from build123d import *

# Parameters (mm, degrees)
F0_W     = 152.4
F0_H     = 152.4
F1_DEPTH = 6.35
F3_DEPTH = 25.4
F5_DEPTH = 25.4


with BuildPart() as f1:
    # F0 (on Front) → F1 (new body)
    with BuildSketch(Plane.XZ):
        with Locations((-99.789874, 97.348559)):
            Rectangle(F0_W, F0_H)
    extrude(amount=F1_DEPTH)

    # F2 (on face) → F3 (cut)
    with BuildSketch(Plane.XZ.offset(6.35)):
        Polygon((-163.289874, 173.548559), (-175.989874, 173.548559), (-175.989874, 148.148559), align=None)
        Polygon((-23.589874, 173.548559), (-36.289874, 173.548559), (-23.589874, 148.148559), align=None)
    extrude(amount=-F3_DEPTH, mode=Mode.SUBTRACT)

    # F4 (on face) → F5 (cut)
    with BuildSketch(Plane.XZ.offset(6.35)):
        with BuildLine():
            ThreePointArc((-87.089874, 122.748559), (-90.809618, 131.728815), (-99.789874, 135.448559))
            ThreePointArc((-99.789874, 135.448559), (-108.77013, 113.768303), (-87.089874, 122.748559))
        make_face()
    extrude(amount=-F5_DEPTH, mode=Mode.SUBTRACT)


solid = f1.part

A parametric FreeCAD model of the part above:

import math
import FreeCAD as App
import Part
import Sketcher

V = App.Vector
Q = App.Units.Quantity

doc = App.newDocument("Part")
params = doc.addObject("Spreadsheet::Sheet", "Params")
for row, (alias, value) in enumerate([
    ("sketch1_width", "6 in"),
    ("pad1_length", "0.25 in"),
    ("sketch2_height", "1 in"),
    ("sketch2_width", "0.5 in"),
    ("pocket1_length", "1 in"),
    ("sketch3_radius", "0.5 in"),
    ("pocket2_length", "1 in"),
], start=1):
    params.set(f"A{row}", alias)
    params.set(f"B{row}", "=" + value)
    params.setAlias(f"B{row}", alias)

body = doc.addObject("PartDesign::Body", "Body")

# Sketch on XZ plane
sketch1 = body.newObject("Sketcher::SketchObject", "Sketch")
sketch1.AttachmentSupport = (doc.getObject("XZ_Plane"), [""])
sketch1.MapMode = "FlatFace"
sketch1.addGeometry([
    Part.LineSegment(V(-175.989874, 173.548559, 0), V(-175.989874, 21.148559, 0)),
    Part.LineSegment(V(-175.989874, 21.148559, 0), V(-23.589874, 21.148559, 0)),
    Part.LineSegment(V(-23.589874, 21.148559, 0), V(-23.589874, 173.548559, 0)),
    Part.LineSegment(V(-23.589874, 173.548559, 0), V(-175.989874, 173.548559, 0)),
], False)
sketch1.addConstraint([
    Sketcher.Constraint("Coincident", 0, 2, 1, 1),
    Sketcher.Constraint("Coincident", 1, 2, 2, 1),
    Sketcher.Constraint("Coincident", 2, 2, 3, 1),
    Sketcher.Constraint("Coincident", 3, 2, 0, 1),
    Sketcher.Constraint("Vertical", 0),
    Sketcher.Constraint("Horizontal", 1),
    Sketcher.Constraint("Vertical", 2),
    Sketcher.Constraint("Horizontal", 3),
    Sketcher.Constraint("Equal", 3, 0),
    Sketcher.Constraint("DistanceX", 1, 1, 1, 2, Q("6 in")),
    Sketcher.Constraint("DistanceY", -1, 1, 0, 2, Q("21.148559 mm")),
    Sketcher.Constraint("DistanceX", 0, 2, -1, 1, Q("175.989874 mm")),
])
sketch1.setExpression("Constraints[9]", "Params.sketch1_width")
pad1 = body.newObject("PartDesign::Pad", "Pad")
pad1.Profile = sketch1
pad1.setExpression("Length", "Params.pad1_length")

# Sketch on XZ plane
sketch2 = body.newObject("Sketcher::SketchObject", "Sketch001")
sketch2.AttachmentSupport = (doc.getObject("XZ_Plane"), [""])
sketch2.MapMode = "FlatFace"
sketch2.AttachmentOffset = App.Placement(V(0, 0, 0.25 * 25.4), App.Rotation())
sketch2.addGeometry([
    Part.LineSegment(V(-163.289874, 173.548559, 0), V(-175.989874, 173.548559, 0)),  # 0
    Part.LineSegment(V(-175.989874, 173.548559, 0), V(-175.989874, 148.148559, 0)),  # 1
    Part.LineSegment(V(-175.989874, 148.148559, 0), V(-163.289874, 173.548559, 0)),  # 2
    Part.LineSegment(V(-23.589874, 173.548559, 0), V(-36.289874, 173.548559, 0)),  # 3
    Part.LineSegment(V(-36.289874, 173.548559, 0), V(-23.589874, 148.148559, 0)),  # 4
    Part.LineSegment(V(-23.589874, 148.148559, 0), V(-23.589874, 173.548559, 0)),  # 5
], False)
sketch2.addConstraint([
    Sketcher.Constraint("Coincident", 0, 2, 1, 1),
    Sketcher.Constraint("Coincident", 1, 2, 2, 1),
    Sketcher.Constraint("Coincident", 2, 2, 0, 1),
    Sketcher.Constraint("Coincident", 3, 2, 4, 1),
    Sketcher.Constraint("Coincident", 4, 2, 5, 1),
    Sketcher.Constraint("Coincident", 5, 2, 3, 1),
    Sketcher.Constraint("Horizontal", 0),
    Sketcher.Constraint("Vertical", 1),
    Sketcher.Constraint("Horizontal", 3),
    Sketcher.Constraint("Vertical", 5),
    Sketcher.Constraint("Horizontal", 2, 2, 3, 2),
    Sketcher.Constraint("Horizontal", 1, 2, 4, 2),
    Sketcher.Constraint("Equal", 0, 3),
    Sketcher.Constraint("DistanceY", 1, 2, 1, 1, Q("1 in")),
    Sketcher.Constraint("DistanceX", 0, 2, 0, 1, Q("0.5 in")),
    Sketcher.Constraint("DistanceX", 2, 2, 3, 2, Q("5 in")),
    Sketcher.Constraint("DistanceY", -1, 1, 0, 2, Q("173.548559 mm")),
    Sketcher.Constraint("DistanceX", 0, 2, -1, 1, Q("175.989874 mm")),
])
sketch2.setExpression("Constraints[13]", "Params.sketch2_height")
sketch2.setExpression("Constraints[14]", "Params.sketch2_width")
pocket1 = body.newObject("PartDesign::Pocket", "Pocket")
pocket1.Profile = sketch2
pocket1.setExpression("Length", "Params.pocket1_length")

# Sketch on XZ plane
sketch3 = body.newObject("Sketcher::SketchObject", "Sketch002")
sketch3.AttachmentSupport = (doc.getObject("XZ_Plane"), [""])
sketch3.MapMode = "FlatFace"
sketch3.AttachmentOffset = App.Placement(V(0, 0, 0.25 * 25.4), App.Rotation())
sketch3.addGeometry([
    Part.ArcOfCircle(Part.Circle(V(-99.789874, 122.748559, 0), V(0, 0, 1), 12.7), math.radians(0.000002), math.radians(89.999998)),
    Part.ArcOfCircle(Part.Circle(V(-99.789874, 122.748559, 0), V(0, 0, 1), 12.7), math.radians(90), math.radians(360)),
], False)
sketch3.addConstraint([
    Sketcher.Constraint("Tangent", 0, 1, 1, 2),
    Sketcher.Constraint("Coincident", 1, 1, 0, 2),
    Sketcher.Constraint("Horizontal", 1, 3, 0, 1),
    Sketcher.Constraint("Vertical", 0, 3, 1, 1),
    Sketcher.Constraint("Radius", 0, Q("0.5 in")),
    Sketcher.Constraint("DistanceY", -1, 1, 0, 3, Q("122.748559 mm")),
    Sketcher.Constraint("DistanceX", 0, 3, -1, 1, Q("99.789874 mm")),
])
sketch3.setExpression("Constraints[4]", "Params.sketch3_radius")
pocket2 = body.newObject("PartDesign::Pocket", "Pocket001")
pocket2.Profile = sketch3
pocket2.setExpression("Length", "Params.pocket2_length")

doc.recompute()
